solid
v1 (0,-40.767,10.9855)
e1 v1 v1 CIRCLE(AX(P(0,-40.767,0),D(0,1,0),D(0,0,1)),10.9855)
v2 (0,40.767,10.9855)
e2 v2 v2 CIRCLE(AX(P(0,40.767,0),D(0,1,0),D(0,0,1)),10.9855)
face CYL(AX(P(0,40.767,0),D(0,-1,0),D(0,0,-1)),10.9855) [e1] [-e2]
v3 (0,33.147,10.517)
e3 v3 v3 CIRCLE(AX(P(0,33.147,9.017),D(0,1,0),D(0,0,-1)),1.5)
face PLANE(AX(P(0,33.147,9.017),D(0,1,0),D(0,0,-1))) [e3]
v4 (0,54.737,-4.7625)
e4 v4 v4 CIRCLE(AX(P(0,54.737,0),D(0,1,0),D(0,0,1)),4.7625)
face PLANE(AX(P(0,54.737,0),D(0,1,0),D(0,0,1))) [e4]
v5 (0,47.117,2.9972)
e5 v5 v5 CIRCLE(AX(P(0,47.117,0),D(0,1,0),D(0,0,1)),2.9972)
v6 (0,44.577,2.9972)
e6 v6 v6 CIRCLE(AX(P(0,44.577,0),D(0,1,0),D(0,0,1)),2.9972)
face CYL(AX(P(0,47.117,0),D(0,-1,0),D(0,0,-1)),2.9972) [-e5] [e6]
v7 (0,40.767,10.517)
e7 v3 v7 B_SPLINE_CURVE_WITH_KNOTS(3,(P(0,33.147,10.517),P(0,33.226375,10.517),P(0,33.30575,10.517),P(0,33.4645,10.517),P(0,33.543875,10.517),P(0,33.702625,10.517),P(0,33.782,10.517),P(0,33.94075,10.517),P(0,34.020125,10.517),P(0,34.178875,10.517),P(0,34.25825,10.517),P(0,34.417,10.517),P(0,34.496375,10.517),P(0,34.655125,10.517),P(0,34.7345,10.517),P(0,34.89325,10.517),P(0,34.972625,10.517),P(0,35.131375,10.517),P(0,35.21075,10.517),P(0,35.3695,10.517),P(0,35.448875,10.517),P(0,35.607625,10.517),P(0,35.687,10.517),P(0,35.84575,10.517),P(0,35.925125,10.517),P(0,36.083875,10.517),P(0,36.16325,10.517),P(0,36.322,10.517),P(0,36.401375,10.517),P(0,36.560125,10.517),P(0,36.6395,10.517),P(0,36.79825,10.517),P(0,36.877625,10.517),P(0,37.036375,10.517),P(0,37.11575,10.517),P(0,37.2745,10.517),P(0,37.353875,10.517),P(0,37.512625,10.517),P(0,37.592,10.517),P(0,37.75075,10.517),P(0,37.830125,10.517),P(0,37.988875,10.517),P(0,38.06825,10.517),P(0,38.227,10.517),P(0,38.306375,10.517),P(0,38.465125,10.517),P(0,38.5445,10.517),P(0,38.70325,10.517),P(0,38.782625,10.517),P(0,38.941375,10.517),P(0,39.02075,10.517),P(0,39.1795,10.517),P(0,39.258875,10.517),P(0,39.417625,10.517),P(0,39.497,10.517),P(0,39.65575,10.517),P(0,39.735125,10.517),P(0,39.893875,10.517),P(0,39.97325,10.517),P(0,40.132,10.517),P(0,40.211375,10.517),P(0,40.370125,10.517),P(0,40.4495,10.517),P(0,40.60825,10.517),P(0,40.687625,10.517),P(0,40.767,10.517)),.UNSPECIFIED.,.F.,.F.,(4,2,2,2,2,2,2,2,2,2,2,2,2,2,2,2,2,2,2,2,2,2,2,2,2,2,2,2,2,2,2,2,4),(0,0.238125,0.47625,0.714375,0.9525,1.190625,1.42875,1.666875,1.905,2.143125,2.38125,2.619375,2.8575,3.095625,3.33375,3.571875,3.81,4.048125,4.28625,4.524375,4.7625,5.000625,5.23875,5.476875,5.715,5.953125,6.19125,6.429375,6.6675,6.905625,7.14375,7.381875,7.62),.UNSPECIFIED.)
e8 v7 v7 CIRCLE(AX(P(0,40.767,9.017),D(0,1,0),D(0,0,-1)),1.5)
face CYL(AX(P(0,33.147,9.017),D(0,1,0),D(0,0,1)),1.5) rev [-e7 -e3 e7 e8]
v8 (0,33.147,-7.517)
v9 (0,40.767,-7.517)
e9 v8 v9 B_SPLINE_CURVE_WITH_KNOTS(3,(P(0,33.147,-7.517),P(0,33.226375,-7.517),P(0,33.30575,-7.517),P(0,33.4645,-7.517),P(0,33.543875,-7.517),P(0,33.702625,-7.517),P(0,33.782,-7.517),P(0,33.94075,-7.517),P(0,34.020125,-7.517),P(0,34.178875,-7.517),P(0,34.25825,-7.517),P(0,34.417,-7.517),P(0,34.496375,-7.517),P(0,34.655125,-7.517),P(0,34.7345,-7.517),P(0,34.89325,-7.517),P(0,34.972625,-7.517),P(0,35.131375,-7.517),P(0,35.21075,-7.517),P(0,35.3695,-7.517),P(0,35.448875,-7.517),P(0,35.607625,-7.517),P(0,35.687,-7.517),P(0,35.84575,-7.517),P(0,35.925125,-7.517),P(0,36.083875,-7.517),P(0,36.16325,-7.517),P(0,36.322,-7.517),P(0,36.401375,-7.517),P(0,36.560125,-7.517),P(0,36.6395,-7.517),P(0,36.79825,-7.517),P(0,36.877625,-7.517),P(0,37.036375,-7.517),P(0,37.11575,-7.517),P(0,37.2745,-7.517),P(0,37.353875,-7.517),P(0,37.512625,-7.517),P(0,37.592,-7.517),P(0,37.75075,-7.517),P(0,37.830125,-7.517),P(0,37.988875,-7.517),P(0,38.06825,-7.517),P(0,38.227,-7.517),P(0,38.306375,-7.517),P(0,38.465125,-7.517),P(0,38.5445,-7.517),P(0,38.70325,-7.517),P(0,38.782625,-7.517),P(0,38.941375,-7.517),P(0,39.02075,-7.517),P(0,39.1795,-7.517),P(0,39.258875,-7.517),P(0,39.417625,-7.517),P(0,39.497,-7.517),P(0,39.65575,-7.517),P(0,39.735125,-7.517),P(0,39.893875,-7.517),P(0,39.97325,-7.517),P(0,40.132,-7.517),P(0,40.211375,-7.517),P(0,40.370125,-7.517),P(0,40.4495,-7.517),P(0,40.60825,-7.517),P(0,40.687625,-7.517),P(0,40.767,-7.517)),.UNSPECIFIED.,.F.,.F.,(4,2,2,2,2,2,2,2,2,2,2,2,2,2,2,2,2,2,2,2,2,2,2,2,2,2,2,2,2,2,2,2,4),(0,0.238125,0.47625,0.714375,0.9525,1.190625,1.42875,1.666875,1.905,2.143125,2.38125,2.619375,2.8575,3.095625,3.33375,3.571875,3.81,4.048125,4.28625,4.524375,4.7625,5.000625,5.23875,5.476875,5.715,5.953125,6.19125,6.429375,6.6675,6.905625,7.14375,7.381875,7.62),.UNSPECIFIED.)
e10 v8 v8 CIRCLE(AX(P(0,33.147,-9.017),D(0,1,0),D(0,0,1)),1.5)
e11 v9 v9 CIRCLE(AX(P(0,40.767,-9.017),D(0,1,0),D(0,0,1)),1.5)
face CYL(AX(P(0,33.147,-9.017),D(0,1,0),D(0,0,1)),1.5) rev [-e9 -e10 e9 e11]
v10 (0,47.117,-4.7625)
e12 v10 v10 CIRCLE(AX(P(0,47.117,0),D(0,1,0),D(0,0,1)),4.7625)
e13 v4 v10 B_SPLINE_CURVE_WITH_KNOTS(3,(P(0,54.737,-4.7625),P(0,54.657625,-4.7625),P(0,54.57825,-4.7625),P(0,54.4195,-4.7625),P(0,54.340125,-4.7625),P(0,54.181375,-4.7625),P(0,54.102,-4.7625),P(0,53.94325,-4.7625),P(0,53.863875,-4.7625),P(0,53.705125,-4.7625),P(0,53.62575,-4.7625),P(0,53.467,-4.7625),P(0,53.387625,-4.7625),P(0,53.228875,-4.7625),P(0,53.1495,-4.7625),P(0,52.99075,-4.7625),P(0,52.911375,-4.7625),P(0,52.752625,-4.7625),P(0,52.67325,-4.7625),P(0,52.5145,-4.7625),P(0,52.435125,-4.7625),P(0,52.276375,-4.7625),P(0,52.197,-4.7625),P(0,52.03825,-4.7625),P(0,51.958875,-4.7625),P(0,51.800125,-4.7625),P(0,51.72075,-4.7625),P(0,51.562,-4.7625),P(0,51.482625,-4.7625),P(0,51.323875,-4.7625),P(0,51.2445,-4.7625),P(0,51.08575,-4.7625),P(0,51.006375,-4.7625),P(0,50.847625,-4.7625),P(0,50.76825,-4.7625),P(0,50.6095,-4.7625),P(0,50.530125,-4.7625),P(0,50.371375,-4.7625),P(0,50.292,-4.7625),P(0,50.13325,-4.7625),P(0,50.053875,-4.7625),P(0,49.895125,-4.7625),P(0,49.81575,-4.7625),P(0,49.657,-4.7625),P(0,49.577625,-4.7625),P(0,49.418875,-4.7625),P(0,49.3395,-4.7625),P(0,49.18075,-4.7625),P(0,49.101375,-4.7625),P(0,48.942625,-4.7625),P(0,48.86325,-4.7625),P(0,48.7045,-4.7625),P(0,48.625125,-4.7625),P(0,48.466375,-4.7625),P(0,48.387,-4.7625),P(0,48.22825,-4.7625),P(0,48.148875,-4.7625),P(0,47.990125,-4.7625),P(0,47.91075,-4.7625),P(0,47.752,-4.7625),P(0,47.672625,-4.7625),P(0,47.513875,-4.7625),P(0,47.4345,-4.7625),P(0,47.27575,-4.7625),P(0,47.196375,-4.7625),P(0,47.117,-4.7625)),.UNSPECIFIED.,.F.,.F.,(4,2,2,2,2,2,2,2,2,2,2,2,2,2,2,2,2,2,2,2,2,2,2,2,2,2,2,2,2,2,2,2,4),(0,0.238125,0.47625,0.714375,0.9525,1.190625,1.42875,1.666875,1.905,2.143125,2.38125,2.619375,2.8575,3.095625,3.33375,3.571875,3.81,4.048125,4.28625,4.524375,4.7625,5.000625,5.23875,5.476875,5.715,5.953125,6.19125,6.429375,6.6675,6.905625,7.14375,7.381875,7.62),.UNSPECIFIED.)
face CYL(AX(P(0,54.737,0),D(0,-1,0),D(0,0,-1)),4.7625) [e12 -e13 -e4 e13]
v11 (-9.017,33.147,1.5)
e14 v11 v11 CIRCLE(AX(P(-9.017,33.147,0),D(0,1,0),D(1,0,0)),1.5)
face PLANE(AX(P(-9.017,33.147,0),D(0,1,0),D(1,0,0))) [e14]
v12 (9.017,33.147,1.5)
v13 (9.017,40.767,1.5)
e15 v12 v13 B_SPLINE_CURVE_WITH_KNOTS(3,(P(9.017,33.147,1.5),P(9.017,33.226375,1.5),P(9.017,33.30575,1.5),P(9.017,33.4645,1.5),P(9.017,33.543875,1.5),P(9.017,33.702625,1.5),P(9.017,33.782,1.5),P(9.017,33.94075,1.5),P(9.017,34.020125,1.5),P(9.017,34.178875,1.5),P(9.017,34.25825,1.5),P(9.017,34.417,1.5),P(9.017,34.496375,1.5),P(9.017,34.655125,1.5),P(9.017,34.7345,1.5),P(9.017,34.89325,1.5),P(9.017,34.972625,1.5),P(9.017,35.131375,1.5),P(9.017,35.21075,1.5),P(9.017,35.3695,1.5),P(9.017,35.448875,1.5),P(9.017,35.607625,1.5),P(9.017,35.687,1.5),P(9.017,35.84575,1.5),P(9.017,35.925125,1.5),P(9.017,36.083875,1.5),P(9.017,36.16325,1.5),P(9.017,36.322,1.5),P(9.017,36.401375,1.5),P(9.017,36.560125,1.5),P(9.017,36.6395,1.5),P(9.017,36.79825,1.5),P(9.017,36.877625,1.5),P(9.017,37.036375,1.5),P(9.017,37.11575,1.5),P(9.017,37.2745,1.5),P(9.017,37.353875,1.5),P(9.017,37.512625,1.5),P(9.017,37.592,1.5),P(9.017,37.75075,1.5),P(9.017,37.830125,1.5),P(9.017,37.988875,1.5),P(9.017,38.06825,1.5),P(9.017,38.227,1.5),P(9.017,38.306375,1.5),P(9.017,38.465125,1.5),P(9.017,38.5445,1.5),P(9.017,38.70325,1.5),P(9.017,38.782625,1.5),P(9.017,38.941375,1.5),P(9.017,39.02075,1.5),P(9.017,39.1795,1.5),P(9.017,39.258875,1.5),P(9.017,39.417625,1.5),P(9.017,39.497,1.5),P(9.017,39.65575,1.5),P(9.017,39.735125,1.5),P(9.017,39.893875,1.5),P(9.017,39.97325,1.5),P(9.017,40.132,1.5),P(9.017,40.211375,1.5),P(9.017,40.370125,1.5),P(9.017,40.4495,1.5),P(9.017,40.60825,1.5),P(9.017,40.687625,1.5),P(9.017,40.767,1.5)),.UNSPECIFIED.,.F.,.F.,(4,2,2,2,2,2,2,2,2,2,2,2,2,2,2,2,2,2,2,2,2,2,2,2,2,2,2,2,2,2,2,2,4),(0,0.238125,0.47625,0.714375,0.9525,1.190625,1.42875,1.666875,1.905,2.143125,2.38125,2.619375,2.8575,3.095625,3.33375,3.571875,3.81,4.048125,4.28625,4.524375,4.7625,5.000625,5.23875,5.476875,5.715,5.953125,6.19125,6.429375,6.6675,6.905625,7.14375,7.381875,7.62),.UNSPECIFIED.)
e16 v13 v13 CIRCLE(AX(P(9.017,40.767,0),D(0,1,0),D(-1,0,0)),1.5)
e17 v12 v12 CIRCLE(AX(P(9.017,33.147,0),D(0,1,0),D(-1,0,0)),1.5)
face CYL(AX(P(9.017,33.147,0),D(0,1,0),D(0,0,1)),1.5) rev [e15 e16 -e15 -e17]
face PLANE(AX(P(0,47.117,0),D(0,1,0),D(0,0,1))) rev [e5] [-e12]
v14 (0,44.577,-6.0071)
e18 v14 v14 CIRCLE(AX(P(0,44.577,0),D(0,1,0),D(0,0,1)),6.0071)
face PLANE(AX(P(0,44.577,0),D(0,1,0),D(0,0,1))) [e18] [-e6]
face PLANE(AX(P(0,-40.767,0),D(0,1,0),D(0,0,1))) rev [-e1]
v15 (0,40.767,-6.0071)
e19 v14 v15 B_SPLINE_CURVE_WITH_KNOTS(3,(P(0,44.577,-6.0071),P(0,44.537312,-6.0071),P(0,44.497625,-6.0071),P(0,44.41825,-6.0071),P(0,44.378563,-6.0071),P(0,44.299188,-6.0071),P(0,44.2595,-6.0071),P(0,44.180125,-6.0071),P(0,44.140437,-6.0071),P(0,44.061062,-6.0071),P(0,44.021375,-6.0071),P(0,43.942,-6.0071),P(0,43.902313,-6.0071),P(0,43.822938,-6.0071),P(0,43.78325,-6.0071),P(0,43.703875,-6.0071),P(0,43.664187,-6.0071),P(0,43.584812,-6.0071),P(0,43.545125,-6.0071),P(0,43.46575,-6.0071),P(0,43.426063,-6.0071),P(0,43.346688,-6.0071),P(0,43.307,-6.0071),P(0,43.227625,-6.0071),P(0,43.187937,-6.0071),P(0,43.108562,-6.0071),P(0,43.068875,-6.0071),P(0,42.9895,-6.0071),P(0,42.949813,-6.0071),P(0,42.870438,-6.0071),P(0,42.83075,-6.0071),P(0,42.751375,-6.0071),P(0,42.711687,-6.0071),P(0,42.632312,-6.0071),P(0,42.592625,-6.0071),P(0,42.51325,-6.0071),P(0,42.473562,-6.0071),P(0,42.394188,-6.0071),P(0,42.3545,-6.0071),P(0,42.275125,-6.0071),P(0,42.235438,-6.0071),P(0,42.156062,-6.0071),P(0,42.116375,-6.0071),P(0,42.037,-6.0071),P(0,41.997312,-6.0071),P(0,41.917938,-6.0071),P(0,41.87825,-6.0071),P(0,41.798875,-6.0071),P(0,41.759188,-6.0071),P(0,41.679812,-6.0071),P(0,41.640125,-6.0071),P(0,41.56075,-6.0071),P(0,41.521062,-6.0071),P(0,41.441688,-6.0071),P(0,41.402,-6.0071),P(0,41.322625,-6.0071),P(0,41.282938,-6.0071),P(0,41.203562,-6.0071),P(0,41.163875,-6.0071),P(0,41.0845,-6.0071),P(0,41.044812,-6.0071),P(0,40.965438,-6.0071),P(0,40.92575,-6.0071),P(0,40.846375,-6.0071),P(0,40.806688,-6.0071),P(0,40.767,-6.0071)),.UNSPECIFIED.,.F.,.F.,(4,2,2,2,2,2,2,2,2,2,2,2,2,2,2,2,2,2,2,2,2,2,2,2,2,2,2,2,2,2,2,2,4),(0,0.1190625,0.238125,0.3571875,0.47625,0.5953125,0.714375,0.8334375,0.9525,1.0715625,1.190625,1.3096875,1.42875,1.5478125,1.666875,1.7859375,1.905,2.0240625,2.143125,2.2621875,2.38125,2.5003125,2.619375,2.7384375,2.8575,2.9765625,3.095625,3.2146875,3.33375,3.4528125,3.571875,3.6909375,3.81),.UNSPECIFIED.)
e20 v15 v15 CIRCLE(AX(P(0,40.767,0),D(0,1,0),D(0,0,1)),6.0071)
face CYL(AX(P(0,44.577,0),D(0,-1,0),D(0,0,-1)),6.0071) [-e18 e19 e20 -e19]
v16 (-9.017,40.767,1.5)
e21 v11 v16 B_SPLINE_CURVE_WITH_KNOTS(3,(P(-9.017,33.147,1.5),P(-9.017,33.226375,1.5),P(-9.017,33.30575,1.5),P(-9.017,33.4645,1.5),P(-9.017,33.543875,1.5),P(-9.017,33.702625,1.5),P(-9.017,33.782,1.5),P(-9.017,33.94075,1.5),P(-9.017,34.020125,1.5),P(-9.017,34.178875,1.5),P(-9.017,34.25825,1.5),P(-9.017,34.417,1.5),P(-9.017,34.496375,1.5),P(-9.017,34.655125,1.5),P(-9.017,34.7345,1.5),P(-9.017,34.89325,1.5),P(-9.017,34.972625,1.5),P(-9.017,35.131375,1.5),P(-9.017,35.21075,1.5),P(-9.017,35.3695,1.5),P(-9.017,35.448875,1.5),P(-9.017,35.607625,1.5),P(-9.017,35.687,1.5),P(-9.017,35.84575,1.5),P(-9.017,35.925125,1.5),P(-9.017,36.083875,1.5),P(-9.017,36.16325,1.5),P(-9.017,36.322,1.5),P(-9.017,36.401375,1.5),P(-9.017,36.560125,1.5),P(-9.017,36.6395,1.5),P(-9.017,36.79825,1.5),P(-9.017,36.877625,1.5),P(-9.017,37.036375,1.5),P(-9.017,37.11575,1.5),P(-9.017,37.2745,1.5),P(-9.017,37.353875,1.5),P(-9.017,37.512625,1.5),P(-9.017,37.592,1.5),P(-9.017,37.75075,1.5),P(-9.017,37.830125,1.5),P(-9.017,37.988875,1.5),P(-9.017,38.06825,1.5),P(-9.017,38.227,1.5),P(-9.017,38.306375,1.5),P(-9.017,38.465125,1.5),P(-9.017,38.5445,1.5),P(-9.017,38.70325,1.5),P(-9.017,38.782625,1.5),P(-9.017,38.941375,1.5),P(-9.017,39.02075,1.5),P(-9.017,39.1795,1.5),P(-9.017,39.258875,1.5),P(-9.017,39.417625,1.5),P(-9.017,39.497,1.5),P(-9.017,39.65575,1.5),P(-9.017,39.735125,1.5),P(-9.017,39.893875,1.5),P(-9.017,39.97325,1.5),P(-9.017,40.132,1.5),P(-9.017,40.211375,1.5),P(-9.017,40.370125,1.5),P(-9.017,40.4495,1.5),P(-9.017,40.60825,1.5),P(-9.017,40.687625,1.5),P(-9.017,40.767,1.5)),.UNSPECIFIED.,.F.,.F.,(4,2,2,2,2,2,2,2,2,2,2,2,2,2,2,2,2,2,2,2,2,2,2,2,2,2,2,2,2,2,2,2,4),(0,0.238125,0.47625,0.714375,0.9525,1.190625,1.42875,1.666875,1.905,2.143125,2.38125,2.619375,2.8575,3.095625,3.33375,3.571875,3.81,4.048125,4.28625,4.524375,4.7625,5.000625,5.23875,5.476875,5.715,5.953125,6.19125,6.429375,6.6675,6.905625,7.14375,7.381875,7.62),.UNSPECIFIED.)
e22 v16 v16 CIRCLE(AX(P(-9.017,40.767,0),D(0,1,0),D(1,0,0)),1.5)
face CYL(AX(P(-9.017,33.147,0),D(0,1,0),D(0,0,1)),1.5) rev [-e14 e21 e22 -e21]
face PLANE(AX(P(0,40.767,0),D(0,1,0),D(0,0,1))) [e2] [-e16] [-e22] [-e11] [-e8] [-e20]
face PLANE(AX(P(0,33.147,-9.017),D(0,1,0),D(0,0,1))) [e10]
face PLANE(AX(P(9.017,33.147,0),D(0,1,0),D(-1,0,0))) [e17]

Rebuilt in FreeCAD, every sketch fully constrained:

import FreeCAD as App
import Part
import Sketcher
from FreeCAD import Vector
Q = App.Units.Quantity

doc = App.newDocument("Part")
params = doc.addObject("Spreadsheet::Sheet", "Params")
for row, (alias, value) in enumerate([
    ("sketch1_diameter", "0.865 in"),
    ("pad1_length", "3.21 in"),
    ("sketch2_diameter", "0.473 in"),
    ("pad2_length", "0.15 in"),
    ("sketch3_diameter", "0.236 in"),
    ("pad3_length", "0.1 in"),
    ("sketch4_diameter", "0.375 in"),
    ("pad4_length", "0.3 in"),
    ("pocket1_length", "0.3 in"),
], start=1):
    params.set(f"A{row}", alias)
    params.set(f"B{row}", "=" + value)
    params.setAlias(f"B{row}", alias)

body = doc.addObject("PartDesign::Body", "Body")

# Sketch on XZ plane
sketch1 = doc.addObject("Sketcher::SketchObject", "Sketch")
body.addObject(sketch1)
sketch1.AttachmentSupport = (doc.XZ_Plane, [""])
sketch1.MapMode = "FlatFace"
sketch1.addGeometry(Part.Circle(Vector(0, 0, 0), Vector(0, 0, 1), 11), False)
sketch1.addConstraint([
    Sketcher.Constraint("Coincident", 0, 3, -1, 1),
    Sketcher.Constraint("Diameter", 0, Q("0.865 in")),
])
sketch1.setExpression("Constraints[1]", "Params.sketch1_diameter")
pad1 = doc.addObject("PartDesign::Pad", "Pad")
body.addObject(pad1)
pad1.Profile = sketch1
pad1.setExpression("Length", "Params.pad1_length")
pad1.Midplane = True

# Sketch on XZ plane
sketch2 = doc.addObject("Sketcher::SketchObject", "Sketch001")
body.addObject(sketch2)
sketch2.AttachmentSupport = (doc.XZ_Plane, [""])
sketch2.MapMode = "FlatFace"
sketch2.AttachmentOffset = App.Placement(Vector(0, 0, -1.605 * 25.4), App.Rotation())
sketch2.addGeometry(Part.Circle(Vector(0, 0, 0), Vector(0, 0, 1), 6), False)
sketch2.addConstraint([
    Sketcher.Constraint("Coincident", 0, 3, -1, 1),
    Sketcher.Constraint("Diameter", 0, Q("0.473 in")),
])
sketch2.setExpression("Constraints[1]", "Params.sketch2_diameter")
pad2 = doc.addObject("PartDesign::Pad", "Pad001")
body.addObject(pad2)
pad2.Profile = sketch2
pad2.setExpression("Length", "Params.pad2_length")
pad2.Reversed = True

# Sketch on XZ plane
sketch3 = doc.addObject("Sketcher::SketchObject", "Sketch002")
body.addObject(sketch3)
sketch3.AttachmentSupport = (doc.XZ_Plane, [""])
sketch3.MapMode = "FlatFace"
sketch3.AttachmentOffset = App.Placement(Vector(0, 0, -1.755 * 25.4), App.Rotation())
sketch3.addGeometry(Part.Circle(Vector(0, 0, 0), Vector(0, 0, 1), 3), False)
sketch3.addConstraint([
    Sketcher.Constraint("Coincident", 0, 3, -1, 1),
    Sketcher.Constraint("Diameter", 0, Q("0.236 in")),
])
sketch3.setExpression("Constraints[1]", "Params.sketch3_diameter")
pad3 = doc.addObject("PartDesign::Pad", "Pad002")
body.addObject(pad3)
pad3.Profile = sketch3
pad3.setExpression("Length", "Params.pad3_length")
pad3.Reversed = True

# Sketch on XZ plane
sketch4 = doc.addObject("Sketcher::SketchObject", "Sketch003")
body.addObject(sketch4)
sketch4.AttachmentSupport = (doc.XZ_Plane, [""])
sketch4.MapMode = "FlatFace"
sketch4.AttachmentOffset = App.Placement(Vector(0, 0, -1.855 * 25.4), App.Rotation())
sketch4.addGeometry(Part.Circle(Vector(0, 0, 0), Vector(0, 0, 1), 4.8), False)
sketch4.addConstraint([
    Sketcher.Constraint("Coincident", 0, 3, -1, 1),
    Sketcher.Constraint("Diameter", 0, Q("0.375 in")),
])
sketch4.setExpression("Constraints[1]", "Params.sketch4_diameter")
pad4 = doc.addObject("PartDesign::Pad", "Pad003")
body.addObject(pad4)
pad4.Profile = sketch4
pad4.setExpression("Length", "Params.pad4_length")
pad4.Reversed = True

# Sketch on XZ plane
sketch5 = doc.addObject("Sketcher::SketchObject", "Sketch004")
body.addObject(sketch5)
sketch5.AttachmentSupport = (doc.XZ_Plane, [""])
sketch5.MapMode = "FlatFace"
sketch5.AttachmentOffset = App.Placement(Vector(0, 0, -1.605 * 25.4), App.Rotation())
sketch5.addGeometry(Part.Circle(Vector(0, -9, 0), Vector(0, 0, 1), 1.5), False)
sketch5.addConstraint([
    Sketcher.Constraint("PointOnObject", 0, 3, -2),
    Sketcher.Constraint("Diameter", 0, 3.0),
    Sketcher.Constraint("DistanceY", 0, 3, -1, 1, Q("0.355 in")),
])
pocket1 = doc.addObject("PartDesign::Pocket", "Pocket")
body.addObject(pocket1)
pocket1.Profile = sketch5
pocket1.setExpression("Length", "Params.pocket1_length")
pocket1.Reversed = True
doc.recompute()

polarpattern = doc.addObject("PartDesign::PolarPattern", "PolarPattern")
body.addObject(polarpattern)
polarpattern.Originals = [pocket1]
polarpattern.Axis = (doc.Y_Axis, [""])
polarpattern.Angle = 360
polarpattern.Occurrences = 4
body.Tip = polarpattern

doc.recompute()
